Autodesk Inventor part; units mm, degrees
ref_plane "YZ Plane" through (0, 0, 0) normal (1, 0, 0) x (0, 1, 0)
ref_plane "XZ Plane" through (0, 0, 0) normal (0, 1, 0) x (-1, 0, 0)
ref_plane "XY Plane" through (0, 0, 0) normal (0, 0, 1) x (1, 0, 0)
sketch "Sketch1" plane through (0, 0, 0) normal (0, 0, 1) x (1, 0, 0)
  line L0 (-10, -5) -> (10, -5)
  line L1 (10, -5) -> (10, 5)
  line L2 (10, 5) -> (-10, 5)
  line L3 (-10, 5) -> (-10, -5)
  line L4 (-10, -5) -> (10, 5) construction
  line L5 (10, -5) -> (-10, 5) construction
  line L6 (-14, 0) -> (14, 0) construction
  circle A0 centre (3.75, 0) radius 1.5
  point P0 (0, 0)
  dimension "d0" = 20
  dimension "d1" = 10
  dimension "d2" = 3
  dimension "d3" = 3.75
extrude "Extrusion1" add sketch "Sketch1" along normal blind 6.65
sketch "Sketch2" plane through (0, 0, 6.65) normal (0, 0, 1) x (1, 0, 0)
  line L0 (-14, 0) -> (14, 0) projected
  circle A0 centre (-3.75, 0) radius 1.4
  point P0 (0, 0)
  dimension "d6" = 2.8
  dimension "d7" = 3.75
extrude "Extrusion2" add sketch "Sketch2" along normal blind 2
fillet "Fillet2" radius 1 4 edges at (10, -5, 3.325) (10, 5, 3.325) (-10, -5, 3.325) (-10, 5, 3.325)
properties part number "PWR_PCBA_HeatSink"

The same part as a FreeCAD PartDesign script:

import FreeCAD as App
import Part
import Sketcher
Q = App.Units.Quantity


def edges_at(feature, points):
    """Names of the edges that pass closest to the given points."""
    edges = feature.Shape.Edges
    near = lambda p: min(range(len(edges)), key=lambda i: edges[i].distToShape(Part.Vertex(*p))[0])
    return sorted({f"Edge{near(p) + 1}" for p in points})


def add_polygon(sketch, points):
    """Adds a closed chain of lines whose ends are joined by coincident constraints."""
    first, n = sketch.GeometryCount, len(points)
    for a, b in zip(points, points[1:] + points[:1]):
        sketch.addGeometry(Part.LineSegment(App.Vector(*a, 0), App.Vector(*b, 0)), False)
    for i in range(n):
        sketch.addConstraint(Sketcher.Constraint("Coincident", first + i, 2, first + (i + 1) % n, 1))

doc = App.newDocument("Part")
body = doc.addObject("PartDesign::Body", "Body")

# Sketch on XY plane
sketch1 = body.newObject("Sketcher::SketchObject", "Sketch")
sketch1.AttachmentSupport = (doc.getObject("XY_Plane"), [""])
sketch1.MapMode = "FlatFace"
add_polygon(sketch1, [(-10, 5), (-10, -5), (10, -5), (10, 5)])  # lines 0-3
sketch1.addGeometry(Part.Circle(App.Vector(3.8, 0, 0), App.Vector(0, 0, 1), 1.5), False)  # 4
sketch1.addConstraint(Sketcher.Constraint("Vertical", 0))
sketch1.addConstraint(Sketcher.Constraint("Horizontal", 1))
sketch1.addConstraint(Sketcher.Constraint("Vertical", 2))
sketch1.addConstraint(Sketcher.Constraint("Horizontal", 3))
sketch1.addConstraint(Sketcher.Constraint("Symmetric", 0, 2, 2, 2, -1, 1))
sketch1.addConstraint(Sketcher.Constraint("PointOnObject", 4, 3, -1))
sketch1.addConstraint(Sketcher.Constraint("Diameter", 4, Q("3 mm")))
sketch1.addConstraint(Sketcher.Constraint("DistanceX", 1, 1, 1, 2, Q("20 mm")))
sketch1.addConstraint(Sketcher.Constraint("DistanceY", 0, 2, 0, 1, Q("10 mm")))
sketch1.addConstraint(Sketcher.Constraint("DistanceX", -1, 1, 4, 3, Q("3.75 mm")))
pad1 = body.newObject("PartDesign::Pad", "Pad")
pad1.Profile = sketch1
pad1.Length = 6.65

# Sketch on XY plane
sketch2 = body.newObject("Sketcher::SketchObject", "Sketch001")
sketch2.AttachmentSupport = (doc.getObject("XY_Plane"), [""])
sketch2.MapMode = "FlatFace"
sketch2.AttachmentOffset = App.Placement(App.Vector(0, 0, 6.65), App.Rotation())
sketch2.addGeometry(Part.Circle(App.Vector(-3.8, 0, 0), App.Vector(0, 0, 1), 1.4), False)
sketch2.addConstraint(Sketcher.Constraint("PointOnObject", 0, 3, -1))
sketch2.addConstraint(Sketcher.Constraint("Diameter", 0, Q("2.8 mm")))
sketch2.addConstraint(Sketcher.Constraint("DistanceX", 0, 3, -1, 1, Q("3.75 mm")))
pad2 = body.newObject("PartDesign::Pad", "Pad001")
pad2.Profile = sketch2
pad2.Length = 2
doc.recompute()

fillet = body.newObject("PartDesign::Fillet", "Fillet")
fillet.Base = (pad2, edges_at(pad2, [
    (10, -5, 3.325),
    (10, 5, 3.325),
    (-10, -5, 3.325),
    (-10, 5, 3.325),
]))
fillet.Radius = 1

doc.recompute()
